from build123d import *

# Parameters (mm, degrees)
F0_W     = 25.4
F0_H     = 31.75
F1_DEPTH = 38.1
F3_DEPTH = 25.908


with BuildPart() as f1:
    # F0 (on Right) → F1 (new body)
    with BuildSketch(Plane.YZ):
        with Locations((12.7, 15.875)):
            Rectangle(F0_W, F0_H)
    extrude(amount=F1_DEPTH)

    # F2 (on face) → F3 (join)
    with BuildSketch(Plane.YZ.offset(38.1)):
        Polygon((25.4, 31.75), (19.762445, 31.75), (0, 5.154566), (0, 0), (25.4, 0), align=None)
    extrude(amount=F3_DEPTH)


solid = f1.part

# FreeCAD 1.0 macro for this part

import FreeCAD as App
import Part
import Sketcher

V = App.Vector
Q = App.Units.Quantity


def add_polygon(sketch, points):
    """Adds a closed chain of lines whose ends are joined by coincident constraints."""
    first, n = sketch.GeometryCount, len(points)
    for a, b in zip(points, points[1:] + points[:1]):
        sketch.addGeometry(Part.LineSegment(App.Vector(*a, 0), App.Vector(*b, 0)), False)
    for i in range(n):
        sketch.addConstraint(Sketcher.Constraint("Coincident", first + i, 2, first + (i + 1) % n, 1))

doc = App.newDocument("Part")
body = doc.addObject("PartDesign::Body", "Body")

# Sketch on YZ plane
sketch1 = doc.addObject("Sketcher::SketchObject", "Sketch")
body.addObject(sketch1)
sketch1.AttachmentSupport = (doc.YZ_Plane, [""])
sketch1.MapMode = "FlatFace"
add_polygon(sketch1, [(0, 31.75), (0, 0), (25.4, 0), (25.4, 31.75)])  # lines 0-3
sketch1.addConstraint(Sketcher.Constraint("Vertical", 0))
sketch1.addConstraint(Sketcher.Constraint("Horizontal", 1))
sketch1.addConstraint(Sketcher.Constraint("Vertical", 2))
sketch1.addConstraint(Sketcher.Constraint("Horizontal", 3))
sketch1.addConstraint(Sketcher.Constraint("Coincident", 0, 2, -1, 1))
sketch1.addConstraint(Sketcher.Constraint("DistanceX", 1, 1, 1, 2, Q("1 in")))
sketch1.addConstraint(Sketcher.Constraint("DistanceY", 0, 2, 0, 1, Q("1.25 in")))
pad1 = doc.addObject("PartDesign::Pad", "Pad")
body.addObject(pad1)
pad1.Profile = sketch1
pad1.Length = Q("1.5 in")

# Sketch on YZ plane
sketch2 = doc.addObject("Sketcher::SketchObject", "Sketch001")
body.addObject(sketch2)
sketch2.AttachmentSupport = (doc.YZ_Plane, [""])
sketch2.MapMode = "FlatFace"
sketch2.AttachmentOffset = App.Placement(V(0, 0, 1.5 * 25.4), App.Rotation())
add_polygon(sketch2, [(25.4, 31.75), (19.762445, 31.75), (0, 5.154566), (0, 0), (25.4, 0)])  # lines 0-4
sketch2.addConstraint(Sketcher.Constraint("Horizontal", 0))
sketch2.addConstraint(Sketcher.Constraint("Vertical", 2))
sketch2.addConstraint(Sketcher.Constraint("Horizontal", 3))
sketch2.addConstraint(Sketcher.Constraint("Vertical", 4))
sketch2.addConstraint(Sketcher.Constraint("Coincident", 2, 2, -1, 1))
sketch2.addConstraint(Sketcher.Constraint("DistanceX", 3, 1, 3, 2, Q("1 in")))
sketch2.addConstraint(Sketcher.Constraint("DistanceY", 4, 1, 4, 2, Q("1.25 in")))
sketch2.addConstraint(Sketcher.Constraint("Distance", 1, Q("33.134142 mm")))
sketch2.addConstraint(Sketcher.Constraint("DistanceX", 0, 2, 0, 1, Q("5.637555 mm")))
pad2 = doc.addObject("PartDesign::Pad", "Pad001")
body.addObject(pad2)
pad2.Profile = sketch2
pad2.Length = Q("1.02 in")

doc.recompute()
